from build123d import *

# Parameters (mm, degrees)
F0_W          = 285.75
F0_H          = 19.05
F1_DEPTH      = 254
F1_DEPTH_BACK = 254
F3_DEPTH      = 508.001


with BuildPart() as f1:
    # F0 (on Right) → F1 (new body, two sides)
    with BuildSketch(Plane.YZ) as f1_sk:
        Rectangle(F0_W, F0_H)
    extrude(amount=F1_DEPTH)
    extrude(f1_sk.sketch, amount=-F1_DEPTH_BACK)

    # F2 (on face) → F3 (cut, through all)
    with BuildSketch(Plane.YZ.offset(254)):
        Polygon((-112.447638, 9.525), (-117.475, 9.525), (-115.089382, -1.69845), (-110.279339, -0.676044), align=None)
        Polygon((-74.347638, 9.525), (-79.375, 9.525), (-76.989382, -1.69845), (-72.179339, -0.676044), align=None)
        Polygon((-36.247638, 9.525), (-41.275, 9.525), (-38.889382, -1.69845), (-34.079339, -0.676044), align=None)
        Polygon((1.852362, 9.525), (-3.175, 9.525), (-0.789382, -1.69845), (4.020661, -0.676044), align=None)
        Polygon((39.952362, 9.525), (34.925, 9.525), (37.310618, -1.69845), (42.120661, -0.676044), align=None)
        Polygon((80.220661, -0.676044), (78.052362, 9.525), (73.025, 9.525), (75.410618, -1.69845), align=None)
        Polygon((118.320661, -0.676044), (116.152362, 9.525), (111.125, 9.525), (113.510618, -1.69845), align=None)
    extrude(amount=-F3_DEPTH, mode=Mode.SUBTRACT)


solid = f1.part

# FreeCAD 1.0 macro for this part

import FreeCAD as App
import Part
import Sketcher

V = App.Vector
Q = App.Units.Quantity

doc = App.newDocument("Part")
body = doc.addObject("PartDesign::Body", "Body")

# Sketch on YZ plane
sketch1 = body.newObject("Sketcher::SketchObject", "Sketch")
sketch1.AttachmentSupport = (doc.getObject("YZ_Plane"), [""])
sketch1.MapMode = "FlatFace"
sketch1.addGeometry([
    Part.LineSegment(V(-142.875, 9.525, 0), V(-142.875, -9.525, 0)),
    Part.LineSegment(V(-142.875, -9.525, 0), V(142.875, -9.525, 0)),
    Part.LineSegment(V(142.875, -9.525, 0), V(142.875, 9.525, 0)),
    Part.LineSegment(V(142.875, 9.525, 0), V(-142.875, 9.525, 0)),
], False)
sketch1.addConstraint([
    Sketcher.Constraint("Coincident", 0, 2, 1, 1),
    Sketcher.Constraint("Coincident", 1, 2, 2, 1),
    Sketcher.Constraint("Coincident", 2, 2, 3, 1),
    Sketcher.Constraint("Coincident", 3, 2, 0, 1),
    Sketcher.Constraint("Vertical", 0),
    Sketcher.Constraint("Horizontal", 1),
    Sketcher.Constraint("Vertical", 2),
    Sketcher.Constraint("Horizontal", 3),
    Sketcher.Constraint("Symmetric", 0, 2, 2, 2, -1, 1),
    Sketcher.Constraint("DistanceX", 1, 1, 1, 2, Q("11.25 in")),
    Sketcher.Constraint("DistanceY", 0, 2, 0, 1, Q("0.75 in")),
])
pad1 = body.newObject("PartDesign::Pad", "Pad")
pad1.Profile = sketch1
pad1.Type = "TwoLengths"
pad1.Length = Q("10 in")
pad1.Length2 = Q("10 in")

# Sketch on YZ plane
sketch2 = body.newObject("Sketcher::SketchObject", "Sketch001")
sketch2.AttachmentSupport = (doc.getObject("YZ_Plane"), [""])
sketch2.MapMode = "FlatFace"
sketch2.AttachmentOffset = App.Placement(V(0, 0, 10 * 25.4), App.Rotation())
sketch2.addGeometry([
    Part.LineSegment(V(-112.447638, 9.525, 0), V(-117.475, 9.525, 0)),  # 0
    Part.LineSegment(V(-117.475, 9.525, 0), V(-115.089382, -1.69845, 0)),  # 1
    Part.LineSegment(V(-115.089382, -1.69845, 0), V(-110.279339, -0.676044, 0)),  # 2
    Part.LineSegment(V(-110.279339, -0.676044, 0), V(-112.447638, 9.525, 0)),  # 3
    Part.LineSegment(V(-74.347638, 9.525, 0), V(-79.375, 9.525, 0)),  # 4
    Part.LineSegment(V(-79.375, 9.525, 0), V(-76.989382, -1.69845, 0)),  # 5
    Part.LineSegment(V(-76.989382, -1.69845, 0), V(-72.179339, -0.676044, 0)),  # 6
    Part.LineSegment(V(-72.179339, -0.676044, 0), V(-74.347638, 9.525, 0)),  # 7
    Part.LineSegment(V(-36.247638, 9.525, 0), V(-41.275, 9.525, 0)),  # 8
    Part.LineSegment(V(-41.275, 9.525, 0), V(-38.889382, -1.69845, 0)),  # 9
    Part.LineSegment(V(-38.889382, -1.69845, 0), V(-34.079339, -0.676044, 0)),  # 10
    Part.LineSegment(V(-34.079339, -0.676044, 0), V(-36.247638, 9.525, 0)),  # 11
    Part.LineSegment(V(1.852362, 9.525, 0), V(-3.175, 9.525, 0)),  # 12
    Part.LineSegment(V(-3.175, 9.525, 0), V(-0.789382, -1.69845, 0)),  # 13
    Part.LineSegment(V(-0.789382, -1.69845, 0), V(4.020661, -0.676044, 0)),  # 14
    Part.LineSegment(V(4.020661, -0.676044, 0), V(1.852362, 9.525, 0)),  # 15
    Part.LineSegment(V(39.952362, 9.525, 0), V(34.925, 9.525, 0)),  # 16
    Part.LineSegment(V(34.925, 9.525, 0), V(37.310618, -1.69845, 0)),  # 17
    Part.LineSegment(V(37.310618, -1.69845, 0), V(42.120661, -0.676044, 0)),  # 18
    Part.LineSegment(V(42.120661, -0.676044, 0), V(39.952362, 9.525, 0)),  # 19
    Part.LineSegment(V(80.220661, -0.676044, 0), V(78.052362, 9.525, 0)),  # 20
    Part.LineSegment(V(78.052362, 9.525, 0), V(73.025, 9.525, 0)),  # 21
    Part.LineSegment(V(73.025, 9.525, 0), V(75.410618, -1.69845, 0)),  # 22
    Part.LineSegment(V(75.410618, -1.69845, 0), V(80.220661, -0.676044, 0)),  # 23
    Part.LineSegment(V(118.320661, -0.676044, 0), V(116.152362, 9.525, 0)),  # 24
    Part.LineSegment(V(116.152362, 9.525, 0), V(111.125, 9.525, 0)),  # 25
    Part.LineSegment(V(111.125, 9.525, 0), V(113.510618, -1.69845, 0)),  # 26
    Part.LineSegment(V(113.510618, -1.69845, 0), V(118.320661, -0.676044, 0)),  # 27
], False)
sketch2.addConstraint([
    Sketcher.Constraint("Coincident", 0, 2, 1, 1),
    Sketcher.Constraint("Coincident", 1, 2, 2, 1),
    Sketcher.Constraint("Coincident", 2, 2, 3, 1),
    Sketcher.Constraint("Coincident", 3, 2, 0, 1),
    Sketcher.Constraint("Coincident", 4, 2, 5, 1),
    Sketcher.Constraint("Coincident", 5, 2, 6, 1),
    Sketcher.Constraint("Coincident", 6, 2, 7, 1),
    Sketcher.Constraint("Coincident", 7, 2, 4, 1),
    Sketcher.Constraint("Coincident", 8, 2, 9, 1),
    Sketcher.Constraint("Coincident", 9, 2, 10, 1),
    Sketcher.Constraint("Coincident", 10, 2, 11, 1),
    Sketcher.Constraint("Coincident", 11, 2, 8, 1),
    Sketcher.Constraint("Coincident", 12, 2, 13, 1),
    Sketcher.Constraint("Coincident", 13, 2, 14, 1),
    Sketcher.Constraint("Coincident", 14, 2, 15, 1),
    Sketcher.Constraint("Coincident", 15, 2, 12, 1),
    Sketcher.Constraint("Coincident", 16, 2, 17, 1),
    Sketcher.Constraint("Coincident", 17, 2, 18, 1),
    Sketcher.Constraint("Coincident", 18, 2, 19, 1),
    Sketcher.Constraint("Coincident", 19, 2, 16, 1),
    Sketcher.Constraint("Coincident", 20, 2, 21, 1),
    Sketcher.Constraint("Coincident", 21, 2, 22, 1),
    Sketcher.Constraint("Coincident", 22, 2, 23, 1),
    Sketcher.Constraint("Coincident", 23, 2, 20, 1),
    Sketcher.Constraint("Coincident", 24, 2, 25, 1),
    Sketcher.Constraint("Coincident", 25, 2, 26, 1),
    Sketcher.Constraint("Coincident", 26, 2, 27, 1),
    Sketcher.Constraint("Coincident", 27, 2, 24, 1),
    Sketcher.Constraint("Horizontal", 0),
    Sketcher.Constraint("Horizontal", 4),
    Sketcher.Constraint("Horizontal", 8),
    Sketcher.Constraint("Horizontal", 12),
    Sketcher.Constraint("Horizontal", 16),
    Sketcher.Constraint("Horizontal", 21),
    Sketcher.Constraint("Horizontal", 25),
    Sketcher.Constraint("Perpendicular", 1, 2),
    Sketcher.Constraint("Perpendicular", 2, 3),
    Sketcher.Constraint("Parallel", 3, 5),
    Sketcher.Constraint("Perpendicular", 5, 6),
    Sketcher.Constraint("Perpendicular", 6, 7),
    Sketcher.Constraint("Parallel", 7, 9),
    Sketcher.Constraint("Perpendicular", 9, 10),
    Sketcher.Constraint("Perpendicular", 10, 11),
    Sketcher.Constraint("Parallel", 11, 13),
    Sketcher.Constraint("Perpendicular", 13, 14),
    Sketcher.Constraint("Perpendicular", 14, 15),
    Sketcher.Constraint("Parallel", 15, 17),
    Sketcher.Constraint("Perpendicular", 17, 18),
    Sketcher.Constraint("Perpendicular", 18, 19),
    Sketcher.Constraint("Parallel", 19, 20),
    Sketcher.Constraint("Parallel", 20, 22),
    Sketcher.Constraint("Perpendicular", 22, 23),
    Sketcher.Constraint("Perpendicular", 23, 24),
    Sketcher.Constraint("Parallel", 24, 26),
    Sketcher.Constraint("Perpendicular", 26, 27),
    Sketcher.Constraint("Horizontal", 3, 2, 4, 2),
    Sketcher.Constraint("Horizontal", 1, 2, 5, 2),
    Sketcher.Constraint("Horizontal", 2, 2, 6, 2),
    Sketcher.Constraint("Horizontal", 7, 2, 8, 2),
    Sketcher.Constraint("Horizontal", 5, 2, 9, 2),
    Sketcher.Constraint("Horizontal", 6, 2, 10, 2),
    Sketcher.Constraint("Horizontal", 11, 2, 12, 2),
    Sketcher.Constraint("Horizontal", 9, 2, 13, 2),
    Sketcher.Constraint("Horizontal", 10, 2, 14, 2),
    Sketcher.Constraint("Horizontal", 15, 2, 16, 2),
    Sketcher.Constraint("Horizontal", 13, 2, 17, 2),
    Sketcher.Constraint("Horizontal", 14, 2, 18, 2),
    Sketcher.Constraint("Horizontal", 19, 2, 20, 2),
    Sketcher.Constraint("Horizontal", 17, 2, 22, 2),
    Sketcher.Constraint("Horizontal", 18, 2, 23, 2),
    Sketcher.Constraint("Horizontal", 21, 2, 24, 2),
    Sketcher.Constraint("Horizontal", 22, 2, 26, 2),
    Sketcher.Constraint("Horizontal", 23, 2, 27, 2),
    Sketcher.Constraint("Angle", 1, Q("-78 deg")),
    Sketcher.Constraint("DistanceX", 0, 2, 4, 2, Q("1.5 in")),
    Sketcher.Constraint("DistanceX", 4, 2, 8, 2, Q("1.5 in")),
    Sketcher.Constraint("DistanceX", 8, 2, 12, 2, Q("1.5 in")),
    Sketcher.Constraint("DistanceX", 12, 2, 16, 2, Q("1.5 in")),
    Sketcher.Constraint("DistanceX", 19, 2, 20, 2, Q("1.5 in")),
    Sketcher.Constraint("DistanceX", 20, 2, 24, 2, Q("1.5 in")),
    Sketcher.Constraint("DistanceX", 0, 2, -1, 1, Q("4.625 in")),
    Sketcher.Constraint("DistanceY", -1, 1, 0, 2, Q("0.375 in")),
    Sketcher.Constraint("DistanceX", 0, 2, 0, 1, Q("5.027362 mm")),
    Sketcher.Constraint("DistanceX", 3, 2, 2, 2, Q("2.168299 mm")),
])
pocket1 = body.newObject("PartDesign::Pocket", "Pocket")
pocket1.Profile = sketch2
pocket1.Type = "ThroughAll"

doc.recompute()
